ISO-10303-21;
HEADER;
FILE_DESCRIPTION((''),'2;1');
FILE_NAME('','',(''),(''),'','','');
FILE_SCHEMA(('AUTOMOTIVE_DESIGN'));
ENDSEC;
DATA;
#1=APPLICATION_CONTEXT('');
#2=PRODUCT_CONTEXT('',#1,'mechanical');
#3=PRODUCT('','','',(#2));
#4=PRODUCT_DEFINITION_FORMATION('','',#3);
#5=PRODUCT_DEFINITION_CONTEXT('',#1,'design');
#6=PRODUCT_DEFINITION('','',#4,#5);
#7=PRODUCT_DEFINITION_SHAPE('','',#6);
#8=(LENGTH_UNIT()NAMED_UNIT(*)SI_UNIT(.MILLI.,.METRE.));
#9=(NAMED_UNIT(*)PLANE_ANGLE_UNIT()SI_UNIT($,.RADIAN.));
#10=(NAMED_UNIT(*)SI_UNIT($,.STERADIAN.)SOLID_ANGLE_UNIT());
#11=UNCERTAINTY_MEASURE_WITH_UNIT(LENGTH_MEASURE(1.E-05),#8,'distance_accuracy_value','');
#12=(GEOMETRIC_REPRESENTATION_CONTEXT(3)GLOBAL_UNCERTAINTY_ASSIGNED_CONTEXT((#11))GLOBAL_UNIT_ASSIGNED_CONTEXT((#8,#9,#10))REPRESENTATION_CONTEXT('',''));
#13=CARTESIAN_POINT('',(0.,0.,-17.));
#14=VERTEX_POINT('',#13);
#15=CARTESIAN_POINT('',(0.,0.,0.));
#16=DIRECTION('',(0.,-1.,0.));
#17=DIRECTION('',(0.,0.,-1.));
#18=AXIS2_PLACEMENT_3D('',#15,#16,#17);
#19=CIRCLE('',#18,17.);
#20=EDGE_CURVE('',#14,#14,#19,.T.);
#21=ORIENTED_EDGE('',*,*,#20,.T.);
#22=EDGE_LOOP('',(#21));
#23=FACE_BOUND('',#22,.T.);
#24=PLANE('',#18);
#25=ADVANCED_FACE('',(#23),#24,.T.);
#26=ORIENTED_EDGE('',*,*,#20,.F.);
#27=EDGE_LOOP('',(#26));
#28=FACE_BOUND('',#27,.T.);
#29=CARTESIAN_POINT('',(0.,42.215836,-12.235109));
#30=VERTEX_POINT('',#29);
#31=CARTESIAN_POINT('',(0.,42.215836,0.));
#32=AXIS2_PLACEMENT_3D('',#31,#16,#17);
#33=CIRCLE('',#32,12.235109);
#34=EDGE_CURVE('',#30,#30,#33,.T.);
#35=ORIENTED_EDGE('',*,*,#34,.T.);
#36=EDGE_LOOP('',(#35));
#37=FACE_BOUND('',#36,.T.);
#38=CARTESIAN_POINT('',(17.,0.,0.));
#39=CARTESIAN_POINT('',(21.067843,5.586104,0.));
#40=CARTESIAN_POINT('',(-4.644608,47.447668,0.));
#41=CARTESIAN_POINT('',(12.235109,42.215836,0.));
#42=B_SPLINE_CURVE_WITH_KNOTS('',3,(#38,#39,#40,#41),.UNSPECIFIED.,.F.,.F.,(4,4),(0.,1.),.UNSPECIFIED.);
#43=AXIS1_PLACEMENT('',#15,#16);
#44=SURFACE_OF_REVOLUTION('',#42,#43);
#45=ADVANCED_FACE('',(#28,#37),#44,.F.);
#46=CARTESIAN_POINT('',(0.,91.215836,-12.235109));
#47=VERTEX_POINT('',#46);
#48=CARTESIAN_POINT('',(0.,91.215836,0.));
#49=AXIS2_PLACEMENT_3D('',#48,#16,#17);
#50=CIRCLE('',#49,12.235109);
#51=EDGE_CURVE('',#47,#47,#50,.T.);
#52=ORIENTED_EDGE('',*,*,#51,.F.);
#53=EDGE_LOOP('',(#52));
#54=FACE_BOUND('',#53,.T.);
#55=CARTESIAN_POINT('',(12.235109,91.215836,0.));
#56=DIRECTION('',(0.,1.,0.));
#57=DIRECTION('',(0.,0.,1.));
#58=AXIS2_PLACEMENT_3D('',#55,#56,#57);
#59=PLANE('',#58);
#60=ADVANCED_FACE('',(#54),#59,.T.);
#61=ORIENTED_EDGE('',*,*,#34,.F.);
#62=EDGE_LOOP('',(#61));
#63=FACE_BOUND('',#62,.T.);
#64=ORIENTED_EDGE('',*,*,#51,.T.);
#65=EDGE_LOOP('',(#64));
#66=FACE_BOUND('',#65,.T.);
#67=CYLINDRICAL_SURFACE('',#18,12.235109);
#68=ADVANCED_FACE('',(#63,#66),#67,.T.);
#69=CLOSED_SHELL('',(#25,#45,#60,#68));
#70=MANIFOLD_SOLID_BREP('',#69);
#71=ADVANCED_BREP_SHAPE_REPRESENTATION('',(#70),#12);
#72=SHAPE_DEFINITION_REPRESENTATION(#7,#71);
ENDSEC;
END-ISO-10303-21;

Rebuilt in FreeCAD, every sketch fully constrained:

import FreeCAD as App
import Part
import Sketcher
from FreeCAD import Vector
Q = App.Units.Quantity

doc = App.newDocument("Part")
params = doc.addObject("Spreadsheet::Sheet", "Params")
for row, (alias, value) in enumerate([
    ("sketch1_height", "49 mm"),
    ("revolution_angle", "360 deg"),
], start=1):
    params.set(f"A{row}", alias)
    params.set(f"B{row}", "=" + value)
    params.setAlias(f"B{row}", alias)

body = doc.addObject("PartDesign::Body", "Body")

sketch1 = body.newObject("Sketcher::SketchObject", "Sketch")
sketch1.AttachmentSupport = (doc.getObject("XY_Plane"), [""])
sketch1.MapMode = "FlatFace"
sketch1.addGeometry(Part.LineSegment(Vector(0, 0, 0), Vector(17, 0, 0)), False)
sketch1.addGeometry(Part.BSplineCurve([Vector(17, 0, 0), Vector(21.067843, 5.586104, 0), Vector(-4.644608, 47.447668, 0), Vector(12.235109, 42.215836, 0)], [4, 4], [0, 1], False, 3, [1, 1, 1, 1], False), False)
sketch1.addGeometry(Part.LineSegment(Vector(12.235109, 42.215836, 0), Vector(12.235109, 91.215836, 0)), False)
sketch1.addGeometry(Part.LineSegment(Vector(12.235109, 91.215836, 0), Vector(0, 91.215836, 0)), False)
sketch1.addGeometry(Part.LineSegment(Vector(0, 91.215836, 0), Vector(0, 0, 0)), False)
sketch1.addConstraint(Sketcher.Constraint("Block", 1))
sketch1.addConstraint(Sketcher.Constraint("Coincident", 0, 2, 1, 1))
sketch1.addConstraint(Sketcher.Constraint("Coincident", 1, 2, 2, 1))
sketch1.addConstraint(Sketcher.Constraint("Coincident", 2, 2, 3, 1))
sketch1.addConstraint(Sketcher.Constraint("Coincident", 3, 2, 4, 1))
sketch1.addConstraint(Sketcher.Constraint("Coincident", 4, 2, 0, 1))
sketch1.addConstraint(Sketcher.Constraint("Horizontal", 0))
sketch1.addConstraint(Sketcher.Constraint("Vertical", 2))
sketch1.addConstraint(Sketcher.Constraint("Horizontal", 3))
sketch1.addConstraint(Sketcher.Constraint("Vertical", 4))
sketch1.addConstraint(Sketcher.Constraint("PointOnObject", 3, 2, -2))
sketch1.addConstraint(Sketcher.Constraint("DistanceY", 2, 1, 2, 2, Q("49 mm")))
sketch1.setExpression("Constraints[11]", "Params.sketch1_height")
revolution = body.newObject("PartDesign::Revolution", "Revolution")
revolution.Profile = sketch1
revolution.ReferenceAxis = (sketch1, ["V_Axis"])
revolution.setExpression("Angle", "Params.revolution_angle")

doc.recompute()
